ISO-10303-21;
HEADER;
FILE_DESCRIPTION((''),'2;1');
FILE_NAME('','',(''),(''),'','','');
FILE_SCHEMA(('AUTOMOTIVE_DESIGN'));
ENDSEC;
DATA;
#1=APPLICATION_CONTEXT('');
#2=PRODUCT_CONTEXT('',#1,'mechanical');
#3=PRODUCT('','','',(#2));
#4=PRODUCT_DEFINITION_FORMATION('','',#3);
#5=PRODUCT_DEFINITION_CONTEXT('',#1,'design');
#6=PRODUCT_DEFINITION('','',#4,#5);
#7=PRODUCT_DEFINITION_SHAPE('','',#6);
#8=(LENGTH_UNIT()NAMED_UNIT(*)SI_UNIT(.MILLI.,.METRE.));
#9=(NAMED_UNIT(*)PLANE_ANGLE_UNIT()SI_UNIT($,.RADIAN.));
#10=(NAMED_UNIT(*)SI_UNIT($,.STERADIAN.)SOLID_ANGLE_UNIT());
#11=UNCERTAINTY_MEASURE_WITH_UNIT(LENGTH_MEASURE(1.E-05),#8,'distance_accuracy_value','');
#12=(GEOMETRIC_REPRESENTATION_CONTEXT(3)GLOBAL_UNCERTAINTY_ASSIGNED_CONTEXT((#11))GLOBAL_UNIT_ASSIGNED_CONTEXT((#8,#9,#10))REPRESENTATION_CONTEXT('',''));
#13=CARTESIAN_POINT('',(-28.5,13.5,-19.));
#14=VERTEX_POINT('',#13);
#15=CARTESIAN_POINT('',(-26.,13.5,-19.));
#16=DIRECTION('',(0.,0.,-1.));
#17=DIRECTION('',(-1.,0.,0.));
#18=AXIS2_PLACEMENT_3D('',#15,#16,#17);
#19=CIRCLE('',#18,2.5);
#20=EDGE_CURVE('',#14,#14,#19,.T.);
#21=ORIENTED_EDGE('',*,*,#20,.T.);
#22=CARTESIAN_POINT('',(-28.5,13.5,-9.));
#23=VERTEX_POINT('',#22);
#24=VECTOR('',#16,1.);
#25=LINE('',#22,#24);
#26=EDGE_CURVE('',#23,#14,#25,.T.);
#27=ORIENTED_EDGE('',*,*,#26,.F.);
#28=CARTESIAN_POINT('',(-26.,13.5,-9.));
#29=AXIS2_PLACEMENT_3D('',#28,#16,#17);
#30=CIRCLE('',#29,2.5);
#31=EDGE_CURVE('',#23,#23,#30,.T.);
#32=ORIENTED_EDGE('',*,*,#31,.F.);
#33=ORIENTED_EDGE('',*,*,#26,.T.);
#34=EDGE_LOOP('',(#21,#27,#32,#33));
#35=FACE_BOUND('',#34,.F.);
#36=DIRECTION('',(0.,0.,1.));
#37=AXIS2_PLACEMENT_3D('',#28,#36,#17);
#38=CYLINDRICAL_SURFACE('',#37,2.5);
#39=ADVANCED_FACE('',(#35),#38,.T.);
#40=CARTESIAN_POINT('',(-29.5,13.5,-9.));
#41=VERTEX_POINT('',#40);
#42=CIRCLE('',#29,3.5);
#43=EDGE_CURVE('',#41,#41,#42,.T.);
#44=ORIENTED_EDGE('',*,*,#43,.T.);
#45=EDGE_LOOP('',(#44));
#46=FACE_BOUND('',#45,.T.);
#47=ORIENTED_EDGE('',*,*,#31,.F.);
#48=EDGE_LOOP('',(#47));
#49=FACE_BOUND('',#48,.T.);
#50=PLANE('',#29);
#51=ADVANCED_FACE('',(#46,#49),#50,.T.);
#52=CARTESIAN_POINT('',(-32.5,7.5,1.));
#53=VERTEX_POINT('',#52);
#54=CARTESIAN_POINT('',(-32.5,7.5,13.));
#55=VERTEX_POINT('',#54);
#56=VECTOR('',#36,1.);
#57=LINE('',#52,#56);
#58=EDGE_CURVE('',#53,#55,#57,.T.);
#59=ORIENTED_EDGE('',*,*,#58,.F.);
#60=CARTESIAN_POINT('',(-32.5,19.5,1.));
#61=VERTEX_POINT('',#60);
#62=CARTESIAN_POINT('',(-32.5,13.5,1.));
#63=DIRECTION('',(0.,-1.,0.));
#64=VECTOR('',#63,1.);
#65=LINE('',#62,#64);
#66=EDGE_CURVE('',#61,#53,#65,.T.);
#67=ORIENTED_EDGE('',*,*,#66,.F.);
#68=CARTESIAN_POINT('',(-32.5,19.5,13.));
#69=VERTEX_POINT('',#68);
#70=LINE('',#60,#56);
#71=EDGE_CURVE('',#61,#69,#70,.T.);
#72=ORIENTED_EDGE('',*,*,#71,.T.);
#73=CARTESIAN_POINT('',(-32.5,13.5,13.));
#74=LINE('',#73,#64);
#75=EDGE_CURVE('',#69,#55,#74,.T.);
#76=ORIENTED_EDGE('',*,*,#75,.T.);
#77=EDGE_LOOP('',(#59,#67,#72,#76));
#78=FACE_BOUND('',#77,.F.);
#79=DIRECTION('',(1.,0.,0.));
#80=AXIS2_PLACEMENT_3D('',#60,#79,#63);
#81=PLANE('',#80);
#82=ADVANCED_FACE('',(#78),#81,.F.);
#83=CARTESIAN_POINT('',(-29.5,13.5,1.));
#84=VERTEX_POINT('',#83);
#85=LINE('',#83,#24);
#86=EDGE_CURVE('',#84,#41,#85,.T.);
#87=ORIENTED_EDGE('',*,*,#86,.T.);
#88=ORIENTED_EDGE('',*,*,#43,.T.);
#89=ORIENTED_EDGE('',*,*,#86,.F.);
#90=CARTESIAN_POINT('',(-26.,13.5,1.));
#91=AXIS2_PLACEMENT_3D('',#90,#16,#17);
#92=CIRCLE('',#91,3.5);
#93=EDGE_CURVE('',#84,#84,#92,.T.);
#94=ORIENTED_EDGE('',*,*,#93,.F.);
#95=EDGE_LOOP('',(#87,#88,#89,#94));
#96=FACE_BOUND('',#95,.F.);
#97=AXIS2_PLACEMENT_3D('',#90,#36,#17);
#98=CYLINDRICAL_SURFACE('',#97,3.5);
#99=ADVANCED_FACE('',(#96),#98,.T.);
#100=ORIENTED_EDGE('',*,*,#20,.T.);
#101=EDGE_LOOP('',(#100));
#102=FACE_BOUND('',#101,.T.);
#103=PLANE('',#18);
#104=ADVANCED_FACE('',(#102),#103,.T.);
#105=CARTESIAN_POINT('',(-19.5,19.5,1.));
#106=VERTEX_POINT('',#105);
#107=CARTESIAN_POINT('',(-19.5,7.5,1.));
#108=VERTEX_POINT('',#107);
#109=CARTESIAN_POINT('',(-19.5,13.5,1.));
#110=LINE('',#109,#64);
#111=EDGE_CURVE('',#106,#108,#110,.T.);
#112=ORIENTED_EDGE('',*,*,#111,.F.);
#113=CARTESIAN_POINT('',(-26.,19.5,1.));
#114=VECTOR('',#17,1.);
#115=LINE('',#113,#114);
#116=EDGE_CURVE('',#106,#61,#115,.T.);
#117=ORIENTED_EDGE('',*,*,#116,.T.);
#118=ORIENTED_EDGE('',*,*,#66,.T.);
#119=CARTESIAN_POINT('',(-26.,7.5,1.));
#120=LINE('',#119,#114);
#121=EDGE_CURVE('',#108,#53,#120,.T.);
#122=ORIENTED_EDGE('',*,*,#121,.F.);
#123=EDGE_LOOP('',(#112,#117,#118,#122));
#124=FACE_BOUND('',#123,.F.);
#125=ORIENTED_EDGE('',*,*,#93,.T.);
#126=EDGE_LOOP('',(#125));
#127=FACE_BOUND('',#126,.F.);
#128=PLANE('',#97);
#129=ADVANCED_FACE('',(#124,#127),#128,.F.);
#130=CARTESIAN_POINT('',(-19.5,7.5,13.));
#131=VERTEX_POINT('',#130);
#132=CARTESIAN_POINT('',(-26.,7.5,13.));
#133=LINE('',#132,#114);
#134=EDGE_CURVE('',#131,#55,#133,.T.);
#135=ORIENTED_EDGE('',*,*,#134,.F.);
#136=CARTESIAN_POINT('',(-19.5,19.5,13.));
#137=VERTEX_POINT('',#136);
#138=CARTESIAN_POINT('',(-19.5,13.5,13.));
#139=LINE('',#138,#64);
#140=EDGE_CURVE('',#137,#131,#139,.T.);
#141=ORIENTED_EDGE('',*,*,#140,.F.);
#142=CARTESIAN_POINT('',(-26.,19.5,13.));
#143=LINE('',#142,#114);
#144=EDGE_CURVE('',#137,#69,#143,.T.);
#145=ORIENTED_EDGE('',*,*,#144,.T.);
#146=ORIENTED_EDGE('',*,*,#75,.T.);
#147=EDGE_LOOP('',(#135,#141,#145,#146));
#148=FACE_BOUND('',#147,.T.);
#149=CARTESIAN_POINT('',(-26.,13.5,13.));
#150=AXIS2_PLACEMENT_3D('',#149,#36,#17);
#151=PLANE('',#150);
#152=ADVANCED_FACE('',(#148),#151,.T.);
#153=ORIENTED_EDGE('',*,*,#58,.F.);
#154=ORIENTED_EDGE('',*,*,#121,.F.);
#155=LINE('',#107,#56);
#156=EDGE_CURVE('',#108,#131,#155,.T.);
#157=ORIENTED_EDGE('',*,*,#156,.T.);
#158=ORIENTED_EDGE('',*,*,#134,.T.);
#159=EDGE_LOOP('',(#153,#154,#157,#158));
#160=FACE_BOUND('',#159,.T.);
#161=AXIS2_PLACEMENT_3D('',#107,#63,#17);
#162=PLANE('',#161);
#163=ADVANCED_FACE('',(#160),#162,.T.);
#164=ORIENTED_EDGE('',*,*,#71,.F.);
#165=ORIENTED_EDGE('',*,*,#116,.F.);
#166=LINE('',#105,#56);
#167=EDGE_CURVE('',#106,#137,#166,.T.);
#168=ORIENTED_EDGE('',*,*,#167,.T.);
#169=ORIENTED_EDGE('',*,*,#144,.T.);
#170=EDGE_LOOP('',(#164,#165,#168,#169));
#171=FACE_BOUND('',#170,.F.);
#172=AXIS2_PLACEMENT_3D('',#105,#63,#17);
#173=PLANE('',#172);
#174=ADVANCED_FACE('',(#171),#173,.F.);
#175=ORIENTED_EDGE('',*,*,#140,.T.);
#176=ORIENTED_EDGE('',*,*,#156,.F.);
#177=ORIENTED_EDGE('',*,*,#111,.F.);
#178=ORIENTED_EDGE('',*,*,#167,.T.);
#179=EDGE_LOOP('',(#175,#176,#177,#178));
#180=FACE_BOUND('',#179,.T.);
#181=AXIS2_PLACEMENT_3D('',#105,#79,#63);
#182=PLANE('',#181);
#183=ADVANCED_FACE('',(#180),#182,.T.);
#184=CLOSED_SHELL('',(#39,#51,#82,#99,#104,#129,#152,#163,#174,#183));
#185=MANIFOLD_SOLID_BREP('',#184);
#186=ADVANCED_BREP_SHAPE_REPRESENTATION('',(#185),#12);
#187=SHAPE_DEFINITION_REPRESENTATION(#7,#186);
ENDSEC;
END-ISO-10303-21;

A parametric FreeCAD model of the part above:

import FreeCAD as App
import Part
import Sketcher
from FreeCAD import Vector
Q = App.Units.Quantity


def add_polygon(sketch, points):
    """Adds a closed chain of lines whose ends are joined by coincident constraints."""
    first, n = sketch.GeometryCount, len(points)
    for a, b in zip(points, points[1:] + points[:1]):
        sketch.addGeometry(Part.LineSegment(App.Vector(*a, 0), App.Vector(*b, 0)), False)
    for i in range(n):
        sketch.addConstraint(Sketcher.Constraint("Coincident", first + i, 2, first + (i + 1) % n, 1))

doc = App.newDocument("Part")
params = doc.addObject("Spreadsheet::Sheet", "Params")
for row, (alias, value) in enumerate([
    ("sketch1_diameter", "7 mm"),
    ("pad1_length", "10 mm"),
    ("sketch2_diameter", "5 mm"),
    ("pad2_length", "10 mm"),
    ("sketch3_width", "13 mm"),
    ("sketch3_height", "12 mm"),
    ("pad3_length", "12 mm"),
], start=1):
    params.set(f"A{row}", alias)
    params.set(f"B{row}", "=" + value)
    params.setAlias(f"B{row}", alias)

body = doc.addObject("PartDesign::Body", "Body")

# Sketch on XY plane
sketch1 = doc.addObject("Sketcher::SketchObject", "Sketch")
body.addObject(sketch1)
sketch1.AttachmentSupport = (doc.XY_Plane, [""])
sketch1.MapMode = "FlatFace"
sketch1.addGeometry(Part.Circle(Vector(0, 0, 0), Vector(0, 0, 1), 3.5), False)
sketch1.addConstraint([
    Sketcher.Constraint("Coincident", 0, 3, -1, 1),
    Sketcher.Constraint("Diameter", 0, Q("7 mm")),
])
sketch1.setExpression("Constraints[1]", "Params.sketch1_diameter")
pad1 = doc.addObject("PartDesign::Pad", "Pad")
body.addObject(pad1)
pad1.Profile = sketch1
pad1.setExpression("Length", "Params.pad1_length")

# Sketch on XY plane
sketch2 = doc.addObject("Sketcher::SketchObject", "Sketch001")
body.addObject(sketch2)
sketch2.AttachmentSupport = (doc.XY_Plane, [""])
sketch2.MapMode = "FlatFace"
sketch2.AttachmentOffset = App.Placement(Vector(0, 0, 10), App.Rotation())
sketch2.addGeometry(Part.Circle(Vector(0, 0, 0), Vector(0, 0, 1), 2.5), False)
sketch2.addConstraint([
    Sketcher.Constraint("Coincident", 0, 3, -1, 1),
    Sketcher.Constraint("Diameter", 0, Q("5 mm")),
])
sketch2.setExpression("Constraints[1]", "Params.sketch2_diameter")
pad2 = doc.addObject("PartDesign::Pad", "Pad001")
body.addObject(pad2)
pad2.Profile = sketch2
pad2.setExpression("Length", "Params.pad2_length")

# Sketch on XY plane
sketch3 = doc.addObject("Sketcher::SketchObject", "Sketch002")
body.addObject(sketch3)
sketch3.AttachmentSupport = (doc.XY_Plane, [""])
sketch3.MapMode = "FlatFace"
add_polygon(sketch3, [(-6.5, -6), (-6.5, 6), (6.5, 6), (6.5, -6)])  # lines 0-3
sketch3.addConstraint([
    Sketcher.Constraint("Vertical", 0),
    Sketcher.Constraint("Horizontal", 1),
    Sketcher.Constraint("Vertical", 2),
    Sketcher.Constraint("Horizontal", 3),
    Sketcher.Constraint("Symmetric", 0, 2, 2, 2, -1, 1),
    Sketcher.Constraint("DistanceX", 1, 1, 1, 2, Q("13 mm")),
    Sketcher.Constraint("DistanceY", 0, 1, 0, 2, Q("12 mm")),
])
sketch3.setExpression("Constraints[9]", "Params.sketch3_width")
sketch3.setExpression("Constraints[10]", "Params.sketch3_height")
pad3 = doc.addObject("PartDesign::Pad", "Pad002")
body.addObject(pad3)
pad3.Profile = sketch3
pad3.setExpression("Length", "Params.pad3_length")
pad3.Reversed = True
body2 = doc.addObject("PartDesign::Body", "Body001")
doc.recompute()

body.Placement = App.Placement(Vector(-26, 13.5, 1), App.Rotation(Vector(0, 1, 0), 180))
boolean = doc.addObject("PartDesign::Boolean", "Boolean")
body2.addObject(boolean)
boolean.Type = "Fuse"
boolean.addObjects([body])

doc.recompute()
